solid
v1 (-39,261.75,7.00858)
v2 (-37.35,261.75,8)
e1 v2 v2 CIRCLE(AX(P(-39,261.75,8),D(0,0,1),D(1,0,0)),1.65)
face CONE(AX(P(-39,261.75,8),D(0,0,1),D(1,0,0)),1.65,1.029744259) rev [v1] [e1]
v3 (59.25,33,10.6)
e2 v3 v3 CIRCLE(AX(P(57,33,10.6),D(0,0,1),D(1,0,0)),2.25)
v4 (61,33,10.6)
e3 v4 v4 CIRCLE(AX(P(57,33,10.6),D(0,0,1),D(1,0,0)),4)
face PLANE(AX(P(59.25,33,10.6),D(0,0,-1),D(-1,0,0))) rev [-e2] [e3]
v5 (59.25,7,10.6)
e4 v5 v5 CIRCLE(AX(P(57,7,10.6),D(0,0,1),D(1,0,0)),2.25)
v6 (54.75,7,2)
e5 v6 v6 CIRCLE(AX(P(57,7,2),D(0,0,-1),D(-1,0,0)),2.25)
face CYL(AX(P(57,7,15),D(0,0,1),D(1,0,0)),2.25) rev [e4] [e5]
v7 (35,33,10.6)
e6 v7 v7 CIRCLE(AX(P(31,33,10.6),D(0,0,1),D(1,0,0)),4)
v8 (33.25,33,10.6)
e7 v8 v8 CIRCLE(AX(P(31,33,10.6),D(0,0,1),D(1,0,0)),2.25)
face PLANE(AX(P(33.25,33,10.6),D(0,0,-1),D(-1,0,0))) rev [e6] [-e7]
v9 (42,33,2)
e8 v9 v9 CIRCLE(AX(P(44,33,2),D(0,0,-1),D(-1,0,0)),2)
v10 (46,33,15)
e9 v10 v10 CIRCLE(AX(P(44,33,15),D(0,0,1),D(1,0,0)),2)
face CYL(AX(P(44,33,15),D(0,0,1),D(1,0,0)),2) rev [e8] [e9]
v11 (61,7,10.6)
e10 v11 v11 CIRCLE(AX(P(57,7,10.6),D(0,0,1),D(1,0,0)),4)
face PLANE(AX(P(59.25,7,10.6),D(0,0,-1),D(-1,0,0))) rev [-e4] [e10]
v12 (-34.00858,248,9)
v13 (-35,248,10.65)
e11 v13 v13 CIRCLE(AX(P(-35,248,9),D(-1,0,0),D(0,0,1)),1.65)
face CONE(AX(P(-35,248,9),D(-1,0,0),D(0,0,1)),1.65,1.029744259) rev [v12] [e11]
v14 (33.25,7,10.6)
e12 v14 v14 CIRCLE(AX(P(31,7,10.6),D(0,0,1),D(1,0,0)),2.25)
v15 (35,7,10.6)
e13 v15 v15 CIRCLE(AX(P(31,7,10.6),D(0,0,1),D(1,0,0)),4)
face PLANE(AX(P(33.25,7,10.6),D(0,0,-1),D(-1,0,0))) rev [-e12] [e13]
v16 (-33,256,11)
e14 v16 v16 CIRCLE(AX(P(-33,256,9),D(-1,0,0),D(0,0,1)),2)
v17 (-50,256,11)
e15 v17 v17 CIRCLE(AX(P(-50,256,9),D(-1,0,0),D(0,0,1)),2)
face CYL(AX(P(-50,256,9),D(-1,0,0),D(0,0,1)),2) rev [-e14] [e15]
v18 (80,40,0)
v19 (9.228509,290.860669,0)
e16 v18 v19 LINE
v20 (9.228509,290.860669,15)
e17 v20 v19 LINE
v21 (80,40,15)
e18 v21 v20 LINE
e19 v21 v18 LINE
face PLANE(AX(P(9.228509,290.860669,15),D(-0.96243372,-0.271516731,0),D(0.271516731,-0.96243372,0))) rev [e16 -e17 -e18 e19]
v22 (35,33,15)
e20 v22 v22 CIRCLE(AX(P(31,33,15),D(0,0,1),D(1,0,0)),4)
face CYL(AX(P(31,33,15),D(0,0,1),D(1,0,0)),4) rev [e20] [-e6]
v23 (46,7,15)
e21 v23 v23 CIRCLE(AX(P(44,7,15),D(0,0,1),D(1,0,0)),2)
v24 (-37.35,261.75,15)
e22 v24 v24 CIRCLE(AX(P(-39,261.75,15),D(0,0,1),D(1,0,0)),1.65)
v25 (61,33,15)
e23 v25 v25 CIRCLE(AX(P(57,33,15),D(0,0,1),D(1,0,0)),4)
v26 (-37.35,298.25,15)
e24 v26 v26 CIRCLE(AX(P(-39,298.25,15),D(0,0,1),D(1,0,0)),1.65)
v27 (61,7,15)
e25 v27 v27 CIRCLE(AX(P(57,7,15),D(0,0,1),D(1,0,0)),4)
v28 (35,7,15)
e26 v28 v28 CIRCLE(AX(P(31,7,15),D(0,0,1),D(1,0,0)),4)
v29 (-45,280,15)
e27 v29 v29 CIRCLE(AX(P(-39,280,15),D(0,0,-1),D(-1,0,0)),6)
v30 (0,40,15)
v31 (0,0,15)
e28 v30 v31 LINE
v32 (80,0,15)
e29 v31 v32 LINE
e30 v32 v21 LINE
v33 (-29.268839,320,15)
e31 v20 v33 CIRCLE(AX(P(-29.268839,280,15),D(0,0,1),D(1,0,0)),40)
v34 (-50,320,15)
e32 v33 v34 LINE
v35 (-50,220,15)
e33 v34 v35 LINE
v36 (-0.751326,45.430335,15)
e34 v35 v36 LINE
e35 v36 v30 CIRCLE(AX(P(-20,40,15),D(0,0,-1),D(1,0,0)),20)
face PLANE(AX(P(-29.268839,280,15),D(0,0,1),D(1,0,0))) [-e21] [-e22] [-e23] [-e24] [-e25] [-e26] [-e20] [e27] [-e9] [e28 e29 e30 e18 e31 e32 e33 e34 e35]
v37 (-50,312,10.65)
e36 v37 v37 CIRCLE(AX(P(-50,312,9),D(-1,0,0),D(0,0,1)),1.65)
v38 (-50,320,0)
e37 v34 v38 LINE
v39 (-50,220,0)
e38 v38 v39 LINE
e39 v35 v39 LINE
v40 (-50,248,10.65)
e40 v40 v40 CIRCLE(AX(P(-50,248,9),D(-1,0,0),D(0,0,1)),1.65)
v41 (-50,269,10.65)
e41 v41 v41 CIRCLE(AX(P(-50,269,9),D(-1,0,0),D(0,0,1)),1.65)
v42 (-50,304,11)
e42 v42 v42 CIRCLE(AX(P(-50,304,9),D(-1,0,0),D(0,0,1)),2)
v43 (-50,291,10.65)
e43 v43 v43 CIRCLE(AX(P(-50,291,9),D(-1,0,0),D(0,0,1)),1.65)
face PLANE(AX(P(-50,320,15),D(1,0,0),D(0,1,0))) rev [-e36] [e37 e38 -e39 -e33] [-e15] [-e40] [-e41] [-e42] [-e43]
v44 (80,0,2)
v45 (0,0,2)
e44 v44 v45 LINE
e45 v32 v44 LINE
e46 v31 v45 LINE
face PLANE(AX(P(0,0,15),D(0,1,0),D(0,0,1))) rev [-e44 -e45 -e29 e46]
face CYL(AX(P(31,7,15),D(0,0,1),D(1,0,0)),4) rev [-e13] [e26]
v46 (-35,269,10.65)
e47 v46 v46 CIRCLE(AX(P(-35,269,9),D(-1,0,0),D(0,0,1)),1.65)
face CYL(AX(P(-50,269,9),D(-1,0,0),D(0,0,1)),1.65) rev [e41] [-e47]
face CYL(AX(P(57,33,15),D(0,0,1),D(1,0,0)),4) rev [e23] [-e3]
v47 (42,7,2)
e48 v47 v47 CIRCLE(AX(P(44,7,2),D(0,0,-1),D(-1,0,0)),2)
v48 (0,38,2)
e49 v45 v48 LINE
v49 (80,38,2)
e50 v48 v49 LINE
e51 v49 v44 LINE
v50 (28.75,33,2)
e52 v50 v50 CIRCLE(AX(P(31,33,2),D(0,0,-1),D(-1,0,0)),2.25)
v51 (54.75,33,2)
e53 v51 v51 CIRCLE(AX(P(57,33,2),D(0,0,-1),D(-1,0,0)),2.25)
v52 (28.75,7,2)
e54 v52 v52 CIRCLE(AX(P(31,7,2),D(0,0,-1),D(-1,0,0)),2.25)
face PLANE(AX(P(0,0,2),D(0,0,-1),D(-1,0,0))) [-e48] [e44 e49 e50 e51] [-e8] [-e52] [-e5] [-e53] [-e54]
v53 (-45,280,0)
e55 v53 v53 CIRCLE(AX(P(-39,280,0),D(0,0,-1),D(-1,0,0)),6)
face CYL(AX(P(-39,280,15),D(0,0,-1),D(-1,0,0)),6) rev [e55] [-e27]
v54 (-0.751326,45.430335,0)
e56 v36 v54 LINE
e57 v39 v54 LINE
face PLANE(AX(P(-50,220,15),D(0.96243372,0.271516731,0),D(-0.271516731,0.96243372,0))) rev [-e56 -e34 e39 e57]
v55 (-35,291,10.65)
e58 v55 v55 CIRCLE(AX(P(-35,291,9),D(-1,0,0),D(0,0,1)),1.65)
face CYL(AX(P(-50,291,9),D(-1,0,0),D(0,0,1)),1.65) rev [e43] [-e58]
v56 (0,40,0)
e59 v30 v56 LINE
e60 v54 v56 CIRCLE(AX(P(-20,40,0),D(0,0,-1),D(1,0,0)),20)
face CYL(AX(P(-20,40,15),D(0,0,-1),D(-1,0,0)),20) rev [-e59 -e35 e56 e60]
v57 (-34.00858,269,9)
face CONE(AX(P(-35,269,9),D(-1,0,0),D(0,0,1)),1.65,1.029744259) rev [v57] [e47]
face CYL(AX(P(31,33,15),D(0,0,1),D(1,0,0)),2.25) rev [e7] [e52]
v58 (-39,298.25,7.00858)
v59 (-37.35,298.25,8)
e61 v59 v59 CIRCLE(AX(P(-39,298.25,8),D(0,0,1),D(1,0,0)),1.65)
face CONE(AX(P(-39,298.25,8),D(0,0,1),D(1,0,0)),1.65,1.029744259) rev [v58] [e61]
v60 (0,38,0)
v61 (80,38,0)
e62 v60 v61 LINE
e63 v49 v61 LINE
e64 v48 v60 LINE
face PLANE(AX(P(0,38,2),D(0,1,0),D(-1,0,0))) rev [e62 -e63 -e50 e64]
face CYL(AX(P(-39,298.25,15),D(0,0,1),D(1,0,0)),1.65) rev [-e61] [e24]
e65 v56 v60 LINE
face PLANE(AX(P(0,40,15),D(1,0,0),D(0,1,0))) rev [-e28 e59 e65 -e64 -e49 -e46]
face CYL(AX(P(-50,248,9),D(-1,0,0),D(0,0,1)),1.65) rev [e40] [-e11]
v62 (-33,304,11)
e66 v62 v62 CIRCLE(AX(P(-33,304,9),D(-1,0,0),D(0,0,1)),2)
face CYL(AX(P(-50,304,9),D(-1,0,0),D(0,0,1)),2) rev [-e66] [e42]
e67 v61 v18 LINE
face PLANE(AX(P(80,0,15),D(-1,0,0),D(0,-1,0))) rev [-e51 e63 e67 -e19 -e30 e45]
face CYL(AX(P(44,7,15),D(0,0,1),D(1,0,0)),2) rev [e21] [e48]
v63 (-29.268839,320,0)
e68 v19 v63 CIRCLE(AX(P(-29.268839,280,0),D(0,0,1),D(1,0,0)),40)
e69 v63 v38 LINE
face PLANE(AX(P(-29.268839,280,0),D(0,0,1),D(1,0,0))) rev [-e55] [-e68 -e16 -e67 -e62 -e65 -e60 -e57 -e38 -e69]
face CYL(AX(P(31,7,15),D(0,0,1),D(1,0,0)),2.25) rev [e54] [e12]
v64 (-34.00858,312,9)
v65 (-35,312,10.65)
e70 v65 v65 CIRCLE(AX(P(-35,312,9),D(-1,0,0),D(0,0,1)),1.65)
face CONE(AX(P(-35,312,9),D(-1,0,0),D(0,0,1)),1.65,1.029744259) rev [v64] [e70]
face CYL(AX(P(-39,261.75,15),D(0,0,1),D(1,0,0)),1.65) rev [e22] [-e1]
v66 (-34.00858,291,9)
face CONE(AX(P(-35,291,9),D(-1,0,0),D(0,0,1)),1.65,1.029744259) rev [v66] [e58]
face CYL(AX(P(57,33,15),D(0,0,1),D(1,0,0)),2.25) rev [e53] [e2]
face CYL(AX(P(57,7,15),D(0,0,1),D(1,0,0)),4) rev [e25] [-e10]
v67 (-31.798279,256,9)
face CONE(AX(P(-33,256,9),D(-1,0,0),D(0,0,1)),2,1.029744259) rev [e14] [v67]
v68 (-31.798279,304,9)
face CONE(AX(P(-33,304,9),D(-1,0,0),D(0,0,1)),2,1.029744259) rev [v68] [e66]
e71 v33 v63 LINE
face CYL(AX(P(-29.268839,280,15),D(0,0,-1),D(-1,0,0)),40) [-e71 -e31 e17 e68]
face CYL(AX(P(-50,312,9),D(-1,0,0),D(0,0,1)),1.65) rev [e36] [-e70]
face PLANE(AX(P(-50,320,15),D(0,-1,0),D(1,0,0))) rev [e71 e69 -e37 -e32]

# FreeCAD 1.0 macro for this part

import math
import FreeCAD as App
import Part
import Sketcher

V = App.Vector


def add_polygon(sketch, points):
    """Adds a closed chain of lines whose ends are joined by coincident constraints."""
    first, n = sketch.GeometryCount, len(points)
    for a, b in zip(points, points[1:] + points[:1]):
        sketch.addGeometry(Part.LineSegment(App.Vector(*a, 0), App.Vector(*b, 0)), False)
    for i in range(n):
        sketch.addConstraint(Sketcher.Constraint("Coincident", first + i, 2, first + (i + 1) % n, 1))

doc = App.newDocument("Part")
body = doc.addObject("PartDesign::Body", "Body")

sketch1 = body.newObject("Sketcher::SketchObject", "Sketch")
sketch1.AttachmentSupport = (doc.getObject("XY_Plane"), [""])
sketch1.MapMode = "FlatFace"
sketch1.addGeometry([
    Part.LineSegment(V(80, 0, 0), V(80, 40, 0)),
    Part.LineSegment(V(80, 40, 0), V(9.228509, 290.860669, 0)),
    Part.ArcOfCircle(Part.Circle(V(-29.268839, 280, 0), V(0, 0, 1), 40), math.radians(15.754541), math.radians(90)),
    Part.LineSegment(V(-29.268839, 320, 0), V(-50, 320, 0)),
    Part.LineSegment(V(-50, 320, 0), V(-50, 220, 0)),
    Part.LineSegment(V(-50, 220, 0), V(-0.751326, 45.430335, 0)),
    Part.ArcOfCircle(Part.Circle(V(-20, 40, 0), V(0, 0, 1), 20), math.radians(0), math.radians(15.754541)),
    Part.LineSegment(V(0, 40, 0), V(0, 0, 0)),
    Part.LineSegment(V(0, 0, 0), V(80, 0, 0)),
], False)
sketch1.addConstraint([
    Sketcher.Constraint("Coincident", 0, 2, 1, 1),
    Sketcher.Constraint("Tangent", 1, 2, 2, 1),
    Sketcher.Constraint("Tangent", 2, 2, 3, 1),
    Sketcher.Constraint("Coincident", 3, 2, 4, 1),
    Sketcher.Constraint("Coincident", 4, 2, 5, 1),
    Sketcher.Constraint("Tangent", 5, 2, 6, 2),
    Sketcher.Constraint("Tangent", 6, 1, 7, 1),
    Sketcher.Constraint("Coincident", 7, 2, 8, 1),
    Sketcher.Constraint("Coincident", 8, 2, 0, 1),
    Sketcher.Constraint("Vertical", 0),
    Sketcher.Constraint("Horizontal", 3),
    Sketcher.Constraint("Vertical", 4),
    Sketcher.Constraint("Vertical", 7),
    Sketcher.Constraint("Horizontal", 8),
    Sketcher.Constraint("Coincident", 7, 2, -1, 1),
    Sketcher.Constraint("Parallel", 1, 5),
    Sketcher.Constraint("Horizontal", 6, 3, 0, 2),
    Sketcher.Constraint("Radius", 2, 40.0),
    Sketcher.Constraint("Radius", 6, 20.0),
    Sketcher.Constraint("DistanceX", 8, 1, 8, 2, 80.0),
    Sketcher.Constraint("DistanceY", 0, 1, 0, 2, 40.0),
    Sketcher.Constraint("DistanceY", 4, 2, 4, 1, 100.0),
    Sketcher.Constraint("DistanceY", -1, 1, 2, 3, 280.0),
    Sketcher.Constraint("DistanceX", 3, 2, -1, 1, 50.0),
])
pad1 = body.newObject("PartDesign::Pad", "Pad")
pad1.Profile = sketch1
pad1.Length = 15

sketch2 = body.newObject("Sketcher::SketchObject", "Sketch001")
sketch2.AttachmentSupport = (doc.getObject("XY_Plane"), [""])
sketch2.MapMode = "FlatFace"
sketch2.addGeometry(Part.Circle(V(-39, 280, 0), V(0, 0, 1), 6), False)
sketch2.addConstraint([
    Sketcher.Constraint("Diameter", 0, 12.0),
    Sketcher.Constraint("DistanceX", 0, 3, -1, 1, 39.0),
    Sketcher.Constraint("DistanceY", -1, 1, 0, 3, 280.0),
])
pocket1 = body.newObject("PartDesign::Pocket", "Pocket")
pocket1.Profile = sketch2
pocket1.Type = "ThroughAll"
pocket1.Reversed = True

sketch3 = body.newObject("Sketcher::SketchObject", "Sketch002")
sketch3.AttachmentSupport = (doc.getObject("XY_Plane"), [""])
sketch3.MapMode = "FlatFace"
sketch3.AttachmentOffset = App.Placement(V(0, 0, 15), App.Rotation())
sketch3.addGeometry([
    Part.Circle(V(-39, 298.25, 0), V(0, 0, 1), 1.65),
    Part.Circle(V(-39, 261.75, 0), V(0, 0, 1), 1.65),
], False)
sketch3.addConstraint([
    Sketcher.Constraint("Equal", 0, 1),
    Sketcher.Constraint("Vertical", 0, 3, 1, 3),
    Sketcher.Constraint("Diameter", 0, 3.3),
    Sketcher.Constraint("DistanceX", 0, 3, -1, 1, 39.0),
    Sketcher.Constraint("DistanceY", 1, 3, 0, 3, 36.5),
    Sketcher.Constraint("DistanceY", -1, 1, 0, 3, 298.25),
])
doc.recompute()
hole = body.newObject("PartDesign::Hole", "Hole")
hole.Profile = sketch3
hole.ThreadType = "None"
hole.Diameter = 3.3
hole.DepthType = "Dimension"
hole.Depth = 7
hole.DrillPoint = "Angled"
hole.DrillPointAngle = 118

sketch4 = body.newObject("Sketcher::SketchObject", "Sketch003")
sketch4.AttachmentSupport = (doc.getObject("XY_Plane"), [""])
sketch4.MapMode = "FlatFace"
add_polygon(sketch4, [(80, 38), (80, 0), (0, 0), (0, 38)])
sketch4.addConstraint([
    Sketcher.Constraint("Vertical", 0),
    Sketcher.Constraint("Horizontal", 1),
    Sketcher.Constraint("Vertical", 2),
    Sketcher.Constraint("Horizontal", 3),
    Sketcher.Constraint("Coincident", 1, 2, -1, 1),
    Sketcher.Constraint("DistanceX", 1, 2, 1, 1, 80.0),
    Sketcher.Constraint("DistanceY", 0, 2, 0, 1, 38.0),
])
pocket2 = body.newObject("PartDesign::Pocket", "Pocket001")
pocket2.Profile = sketch4
pocket2.Length = 2
pocket2.Reversed = True

sketch5 = body.newObject("Sketcher::SketchObject", "Sketch004")
sketch5.AttachmentSupport = (doc.getObject("YZ_Plane"), [""])
sketch5.MapMode = "FlatFace"
sketch5.AttachmentOffset = App.Placement(V(0, 0, -50), App.Rotation())
sketch5.addGeometry([
    Part.Circle(V(312, 9, 0), V(0, 0, 1), 1.65),
    Part.Circle(V(248, 9, 0), V(0, 0, 1), 1.65),
    Part.Circle(V(291, 9, 0), V(0, 0, 1), 1.65),
    Part.Circle(V(269, 9, 0), V(0, 0, 1), 1.65),
], False)
sketch5.addConstraint([
    Sketcher.Constraint("Equal", 0, 1),
    Sketcher.Constraint("Equal", 1, 2),
    Sketcher.Constraint("Equal", 2, 3),
    Sketcher.Constraint("Horizontal", 0, 3, 1, 3),
    Sketcher.Constraint("Horizontal", 1, 3, 2, 3),
    Sketcher.Constraint("Horizontal", 2, 3, 3, 3),
    Sketcher.Constraint("Diameter", 0, 3.3),
    Sketcher.Constraint("DistanceX", -1, 1, 0, 3, 312.0),
    Sketcher.Constraint("DistanceY", -1, 1, 0, 3, 9.0),
    Sketcher.Constraint("DistanceX", -1, 1, 1, 3, 248.0),
    Sketcher.Constraint("DistanceX", -1, 1, 2, 3, 291.0),
    Sketcher.Constraint("DistanceX", -1, 1, 3, 3, 269.0),
])
doc.recompute()
hole2 = body.newObject("PartDesign::Hole", "Hole001")
hole2.Profile = sketch5
hole2.ThreadType = "None"
hole2.Diameter = 3.3
hole2.DepthType = "Dimension"
hole2.Depth = 15
hole2.DrillPoint = "Angled"
hole2.DrillPointAngle = 118
hole2.Reversed = True

sketch6 = body.newObject("Sketcher::SketchObject", "Sketch005")
sketch6.AttachmentSupport = (doc.getObject("YZ_Plane"), [""])
sketch6.MapMode = "FlatFace"
sketch6.AttachmentOffset = App.Placement(V(0, 0, -50), App.Rotation())
sketch6.addGeometry([
    Part.Circle(V(304, 9, 0), V(0, 0, 1), 2),
    Part.Circle(V(256, 9, 0), V(0, 0, 1), 2),
], False)
sketch6.addConstraint([
    Sketcher.Constraint("Equal", 0, 1),
    Sketcher.Constraint("Horizontal", 0, 3, 1, 3),
    Sketcher.Constraint("Diameter", 0, 4.0),
    Sketcher.Constraint("DistanceX", -1, 1, 0, 3, 304.0),
    Sketcher.Constraint("DistanceY", -1, 1, 0, 3, 9.0),
    Sketcher.Constraint("DistanceX", -1, 1, 1, 3, 256.0),
])
doc.recompute()
hole3 = body.newObject("PartDesign::Hole", "Hole002")
hole3.Profile = sketch6
hole3.ThreadType = "None"
hole3.Diameter = 4
hole3.DepthType = "Dimension"
hole3.Depth = 17
hole3.DrillPoint = "Angled"
hole3.DrillPointAngle = 118
hole3.Reversed = True

sketch7 = body.newObject("Sketcher::SketchObject", "Sketch006")
sketch7.AttachmentSupport = (doc.getObject("XY_Plane"), [""])
sketch7.MapMode = "FlatFace"
sketch7.AttachmentOffset = App.Placement(V(0, 0, 15), App.Rotation())
sketch7.addGeometry([
    Part.Circle(V(44, 33, 0), V(0, 0, 1), 2),
    Part.Circle(V(44, 7, 0), V(0, 0, 1), 2),
], False)
sketch7.addConstraint([
    Sketcher.Constraint("Equal", 0, 1),
    Sketcher.Constraint("Vertical", 0, 3, 1, 3),
    Sketcher.Constraint("Diameter", 0, 4.0),
    Sketcher.Constraint("DistanceX", -1, 1, 0, 3, 44.0),
    Sketcher.Constraint("DistanceY", -1, 1, 0, 3, 33.0),
    Sketcher.Constraint("DistanceY", -1, 1, 1, 3, 7.0),
])
doc.recompute()
hole4 = body.newObject("PartDesign::Hole", "Hole003")
hole4.Profile = sketch7
hole4.ThreadType = "None"
hole4.Diameter = 4
hole4.DepthType = "ThroughAll"

sketch8 = body.newObject("Sketcher::SketchObject", "Sketch007")
sketch8.AttachmentSupport = (doc.getObject("XY_Plane"), [""])
sketch8.MapMode = "FlatFace"
sketch8.AttachmentOffset = App.Placement(V(0, 0, 15), App.Rotation())
sketch8.addGeometry([
    Part.Circle(V(57, 33, 0), V(0, 0, 1), 2.25),
    Part.Circle(V(31, 7, 0), V(0, 0, 1), 2.25),
    Part.Circle(V(31, 33, 0), V(0, 0, 1), 2.25),
    Part.Circle(V(57, 7, 0), V(0, 0, 1), 2.25),
], False)
sketch8.addConstraint([
    Sketcher.Constraint("Equal", 0, 1),
    Sketcher.Constraint("Equal", 1, 2),
    Sketcher.Constraint("Equal", 2, 3),
    Sketcher.Constraint("Horizontal", 0, 3, 2, 3),
    Sketcher.Constraint("Horizontal", 1, 3, 3, 3),
    Sketcher.Constraint("Vertical", 1, 3, 2, 3),
    Sketcher.Constraint("Vertical", 0, 3, 3, 3),
    Sketcher.Constraint("Diameter", 0, 4.5),
    Sketcher.Constraint("DistanceX", -1, 1, 0, 3, 57.0),
    Sketcher.Constraint("DistanceY", -1, 1, 0, 3, 33.0),
    Sketcher.Constraint("DistanceX", -1, 1, 1, 3, 31.0),
    Sketcher.Constraint("DistanceY", -1, 1, 1, 3, 7.0),
])
doc.recompute()
hole5 = body.newObject("PartDesign::Hole", "Hole004")
hole5.Profile = sketch8
hole5.ThreadType = "None"
hole5.Diameter = 4.5
hole5.DepthType = "ThroughAll"
hole5.HoleCutType = "Counterbore"
hole5.HoleCutDiameter = 8
hole5.HoleCutDepth = 4.4

doc.recompute()
